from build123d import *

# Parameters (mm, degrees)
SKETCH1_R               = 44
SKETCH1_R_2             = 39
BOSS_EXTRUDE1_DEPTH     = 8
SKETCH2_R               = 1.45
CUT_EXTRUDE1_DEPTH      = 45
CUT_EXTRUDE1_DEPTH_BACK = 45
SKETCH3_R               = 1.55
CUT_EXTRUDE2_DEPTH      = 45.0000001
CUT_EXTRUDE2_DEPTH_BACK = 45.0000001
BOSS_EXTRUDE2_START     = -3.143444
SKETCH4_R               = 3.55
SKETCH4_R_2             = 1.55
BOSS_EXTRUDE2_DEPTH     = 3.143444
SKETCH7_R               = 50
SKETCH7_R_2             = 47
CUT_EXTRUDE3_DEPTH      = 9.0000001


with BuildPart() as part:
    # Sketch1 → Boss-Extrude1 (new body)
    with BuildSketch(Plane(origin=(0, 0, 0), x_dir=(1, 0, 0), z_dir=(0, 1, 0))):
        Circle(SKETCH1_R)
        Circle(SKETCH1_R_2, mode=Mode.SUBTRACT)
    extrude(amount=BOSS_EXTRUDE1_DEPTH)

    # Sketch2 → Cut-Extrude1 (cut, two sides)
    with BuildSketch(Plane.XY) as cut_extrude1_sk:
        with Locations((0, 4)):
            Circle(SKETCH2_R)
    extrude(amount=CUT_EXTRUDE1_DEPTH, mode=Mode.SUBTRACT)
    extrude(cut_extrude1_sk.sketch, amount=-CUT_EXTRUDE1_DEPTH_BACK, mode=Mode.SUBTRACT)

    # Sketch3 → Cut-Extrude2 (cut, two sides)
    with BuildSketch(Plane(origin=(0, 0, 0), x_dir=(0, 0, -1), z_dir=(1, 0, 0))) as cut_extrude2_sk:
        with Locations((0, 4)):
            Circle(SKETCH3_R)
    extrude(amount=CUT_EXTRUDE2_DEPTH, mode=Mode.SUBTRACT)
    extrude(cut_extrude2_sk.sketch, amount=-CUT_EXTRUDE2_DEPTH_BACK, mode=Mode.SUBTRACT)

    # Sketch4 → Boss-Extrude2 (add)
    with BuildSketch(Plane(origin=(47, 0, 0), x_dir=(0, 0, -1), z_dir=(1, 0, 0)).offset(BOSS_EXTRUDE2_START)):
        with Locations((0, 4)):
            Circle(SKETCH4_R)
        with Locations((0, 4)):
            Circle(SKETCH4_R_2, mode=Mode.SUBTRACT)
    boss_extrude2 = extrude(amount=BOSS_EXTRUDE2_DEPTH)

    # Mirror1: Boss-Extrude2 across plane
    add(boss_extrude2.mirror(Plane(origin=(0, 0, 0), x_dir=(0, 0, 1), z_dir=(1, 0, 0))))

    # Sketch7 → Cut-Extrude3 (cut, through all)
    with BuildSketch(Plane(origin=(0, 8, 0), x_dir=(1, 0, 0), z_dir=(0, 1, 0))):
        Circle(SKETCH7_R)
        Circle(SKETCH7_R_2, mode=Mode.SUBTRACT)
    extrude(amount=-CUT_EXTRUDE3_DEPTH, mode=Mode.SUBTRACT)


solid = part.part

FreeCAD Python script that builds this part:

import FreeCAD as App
import Part
import Sketcher

V = App.Vector

doc = App.newDocument("Part")
body = doc.addObject("PartDesign::Body", "Body")

# Sketch on XZ plane
sketch1 = body.newObject("Sketcher::SketchObject", "Sketch")
sketch1.AttachmentSupport = (doc.getObject("XZ_Plane"), [""])
sketch1.MapMode = "FlatFace"
sketch1.addGeometry([
    Part.Circle(V(0, 0, 0), V(0, 0, 1), 44),
    Part.Circle(V(0, 0, 0), V(0, 0, 1), 39),
], False)
sketch1.addConstraint([
    Sketcher.Constraint("Coincident", 0, 3, -1, 1),
    Sketcher.Constraint("Coincident", 1, 3, -1, 1),
    Sketcher.Constraint("Diameter", 0, 88.0),
    Sketcher.Constraint("Diameter", 1, 78.0),
])
pad1 = body.newObject("PartDesign::Pad", "Pad")
pad1.Profile = sketch1
pad1.Length = 8
pad1.Reversed = True

# Sketch on XY plane
sketch2 = body.newObject("Sketcher::SketchObject", "Sketch001")
sketch2.AttachmentSupport = (doc.getObject("XY_Plane"), [""])
sketch2.MapMode = "FlatFace"
sketch2.addGeometry(Part.Circle(V(0, 4, 0), V(0, 0, 1), 1.45), False)
sketch2.addConstraint([
    Sketcher.Constraint("PointOnObject", 0, 3, -2),
    Sketcher.Constraint("Diameter", 0, 2.9),
    Sketcher.Constraint("DistanceY", -1, 1, 0, 3, 4.0),
])
pocket1 = body.newObject("PartDesign::Pocket", "Pocket")
pocket1.Profile = sketch2
pocket1.Type = "ThroughAll"
pocket1.Midplane = True

# Sketch on YZ plane
sketch3 = body.newObject("Sketcher::SketchObject", "Sketch002")
sketch3.AttachmentSupport = (doc.getObject("YZ_Plane"), [""])
sketch3.MapMode = "FlatFace"
sketch3.addGeometry(Part.Circle(V(4, 0, 0), V(0, 0, 1), 1.55), False)
sketch3.addConstraint([
    Sketcher.Constraint("PointOnObject", 0, 3, -1),
    Sketcher.Constraint("Diameter", 0, 3.1),
    Sketcher.Constraint("DistanceX", -1, 1, 0, 3, 4.0),
])
pocket2 = body.newObject("PartDesign::Pocket", "Pocket001")
pocket2.Profile = sketch3
pocket2.Type = "ThroughAll"
pocket2.Midplane = True

# Sketch on YZ plane
sketch4 = body.newObject("Sketcher::SketchObject", "Sketch003")
sketch4.AttachmentSupport = (doc.getObject("YZ_Plane"), [""])
sketch4.MapMode = "FlatFace"
sketch4.AttachmentOffset = App.Placement(V(0, 0, 43.856556), App.Rotation())
sketch4.addGeometry([
    Part.Circle(V(4, 0, 0), V(0, 0, 1), 3.55),
    Part.Circle(V(4, 0, 0), V(0, 0, 1), 1.55),
], False)
sketch4.addConstraint([
    Sketcher.Constraint("Coincident", 1, 3, 0, 3),
    Sketcher.Constraint("PointOnObject", 0, 3, -1),
    Sketcher.Constraint("Diameter", 0, 7.1),
    Sketcher.Constraint("Diameter", 1, 3.1),
    Sketcher.Constraint("DistanceX", -1, 1, 0, 3, 4.0),
])
pad2 = body.newObject("PartDesign::Pad", "Pad001")
pad2.Profile = sketch4
pad2.Length = 3.143444
doc.recompute()

mirrored = body.newObject("PartDesign::Mirrored", "Mirrored")
mirrored.Originals = [pad2]
mirrored.MirrorPlane = (doc.getObject("YZ_Plane"), [""])
body.Tip = mirrored

# Sketch on XZ plane
sketch5 = body.newObject("Sketcher::SketchObject", "Sketch004")
sketch5.AttachmentSupport = (doc.getObject("XZ_Plane"), [""])
sketch5.MapMode = "FlatFace"
sketch5.AttachmentOffset = App.Placement(V(0, 0, -8), App.Rotation())
sketch5.addGeometry([
    Part.Circle(V(0, 0, 0), V(0, 0, 1), 50),
    Part.Circle(V(0, 0, 0), V(0, 0, 1), 47),
], False)
sketch5.addConstraint([
    Sketcher.Constraint("Coincident", 0, 3, -1, 1),
    Sketcher.Constraint("Coincident", 1, 3, -1, 1),
    Sketcher.Constraint("Diameter", 0, 100.0),
    Sketcher.Constraint("Diameter", 1, 94.0),
])
pocket3 = body.newObject("PartDesign::Pocket", "Pocket002")
pocket3.Profile = sketch5
pocket3.Type = "ThroughAll"
pocket3.Reversed = True

doc.recompute()
